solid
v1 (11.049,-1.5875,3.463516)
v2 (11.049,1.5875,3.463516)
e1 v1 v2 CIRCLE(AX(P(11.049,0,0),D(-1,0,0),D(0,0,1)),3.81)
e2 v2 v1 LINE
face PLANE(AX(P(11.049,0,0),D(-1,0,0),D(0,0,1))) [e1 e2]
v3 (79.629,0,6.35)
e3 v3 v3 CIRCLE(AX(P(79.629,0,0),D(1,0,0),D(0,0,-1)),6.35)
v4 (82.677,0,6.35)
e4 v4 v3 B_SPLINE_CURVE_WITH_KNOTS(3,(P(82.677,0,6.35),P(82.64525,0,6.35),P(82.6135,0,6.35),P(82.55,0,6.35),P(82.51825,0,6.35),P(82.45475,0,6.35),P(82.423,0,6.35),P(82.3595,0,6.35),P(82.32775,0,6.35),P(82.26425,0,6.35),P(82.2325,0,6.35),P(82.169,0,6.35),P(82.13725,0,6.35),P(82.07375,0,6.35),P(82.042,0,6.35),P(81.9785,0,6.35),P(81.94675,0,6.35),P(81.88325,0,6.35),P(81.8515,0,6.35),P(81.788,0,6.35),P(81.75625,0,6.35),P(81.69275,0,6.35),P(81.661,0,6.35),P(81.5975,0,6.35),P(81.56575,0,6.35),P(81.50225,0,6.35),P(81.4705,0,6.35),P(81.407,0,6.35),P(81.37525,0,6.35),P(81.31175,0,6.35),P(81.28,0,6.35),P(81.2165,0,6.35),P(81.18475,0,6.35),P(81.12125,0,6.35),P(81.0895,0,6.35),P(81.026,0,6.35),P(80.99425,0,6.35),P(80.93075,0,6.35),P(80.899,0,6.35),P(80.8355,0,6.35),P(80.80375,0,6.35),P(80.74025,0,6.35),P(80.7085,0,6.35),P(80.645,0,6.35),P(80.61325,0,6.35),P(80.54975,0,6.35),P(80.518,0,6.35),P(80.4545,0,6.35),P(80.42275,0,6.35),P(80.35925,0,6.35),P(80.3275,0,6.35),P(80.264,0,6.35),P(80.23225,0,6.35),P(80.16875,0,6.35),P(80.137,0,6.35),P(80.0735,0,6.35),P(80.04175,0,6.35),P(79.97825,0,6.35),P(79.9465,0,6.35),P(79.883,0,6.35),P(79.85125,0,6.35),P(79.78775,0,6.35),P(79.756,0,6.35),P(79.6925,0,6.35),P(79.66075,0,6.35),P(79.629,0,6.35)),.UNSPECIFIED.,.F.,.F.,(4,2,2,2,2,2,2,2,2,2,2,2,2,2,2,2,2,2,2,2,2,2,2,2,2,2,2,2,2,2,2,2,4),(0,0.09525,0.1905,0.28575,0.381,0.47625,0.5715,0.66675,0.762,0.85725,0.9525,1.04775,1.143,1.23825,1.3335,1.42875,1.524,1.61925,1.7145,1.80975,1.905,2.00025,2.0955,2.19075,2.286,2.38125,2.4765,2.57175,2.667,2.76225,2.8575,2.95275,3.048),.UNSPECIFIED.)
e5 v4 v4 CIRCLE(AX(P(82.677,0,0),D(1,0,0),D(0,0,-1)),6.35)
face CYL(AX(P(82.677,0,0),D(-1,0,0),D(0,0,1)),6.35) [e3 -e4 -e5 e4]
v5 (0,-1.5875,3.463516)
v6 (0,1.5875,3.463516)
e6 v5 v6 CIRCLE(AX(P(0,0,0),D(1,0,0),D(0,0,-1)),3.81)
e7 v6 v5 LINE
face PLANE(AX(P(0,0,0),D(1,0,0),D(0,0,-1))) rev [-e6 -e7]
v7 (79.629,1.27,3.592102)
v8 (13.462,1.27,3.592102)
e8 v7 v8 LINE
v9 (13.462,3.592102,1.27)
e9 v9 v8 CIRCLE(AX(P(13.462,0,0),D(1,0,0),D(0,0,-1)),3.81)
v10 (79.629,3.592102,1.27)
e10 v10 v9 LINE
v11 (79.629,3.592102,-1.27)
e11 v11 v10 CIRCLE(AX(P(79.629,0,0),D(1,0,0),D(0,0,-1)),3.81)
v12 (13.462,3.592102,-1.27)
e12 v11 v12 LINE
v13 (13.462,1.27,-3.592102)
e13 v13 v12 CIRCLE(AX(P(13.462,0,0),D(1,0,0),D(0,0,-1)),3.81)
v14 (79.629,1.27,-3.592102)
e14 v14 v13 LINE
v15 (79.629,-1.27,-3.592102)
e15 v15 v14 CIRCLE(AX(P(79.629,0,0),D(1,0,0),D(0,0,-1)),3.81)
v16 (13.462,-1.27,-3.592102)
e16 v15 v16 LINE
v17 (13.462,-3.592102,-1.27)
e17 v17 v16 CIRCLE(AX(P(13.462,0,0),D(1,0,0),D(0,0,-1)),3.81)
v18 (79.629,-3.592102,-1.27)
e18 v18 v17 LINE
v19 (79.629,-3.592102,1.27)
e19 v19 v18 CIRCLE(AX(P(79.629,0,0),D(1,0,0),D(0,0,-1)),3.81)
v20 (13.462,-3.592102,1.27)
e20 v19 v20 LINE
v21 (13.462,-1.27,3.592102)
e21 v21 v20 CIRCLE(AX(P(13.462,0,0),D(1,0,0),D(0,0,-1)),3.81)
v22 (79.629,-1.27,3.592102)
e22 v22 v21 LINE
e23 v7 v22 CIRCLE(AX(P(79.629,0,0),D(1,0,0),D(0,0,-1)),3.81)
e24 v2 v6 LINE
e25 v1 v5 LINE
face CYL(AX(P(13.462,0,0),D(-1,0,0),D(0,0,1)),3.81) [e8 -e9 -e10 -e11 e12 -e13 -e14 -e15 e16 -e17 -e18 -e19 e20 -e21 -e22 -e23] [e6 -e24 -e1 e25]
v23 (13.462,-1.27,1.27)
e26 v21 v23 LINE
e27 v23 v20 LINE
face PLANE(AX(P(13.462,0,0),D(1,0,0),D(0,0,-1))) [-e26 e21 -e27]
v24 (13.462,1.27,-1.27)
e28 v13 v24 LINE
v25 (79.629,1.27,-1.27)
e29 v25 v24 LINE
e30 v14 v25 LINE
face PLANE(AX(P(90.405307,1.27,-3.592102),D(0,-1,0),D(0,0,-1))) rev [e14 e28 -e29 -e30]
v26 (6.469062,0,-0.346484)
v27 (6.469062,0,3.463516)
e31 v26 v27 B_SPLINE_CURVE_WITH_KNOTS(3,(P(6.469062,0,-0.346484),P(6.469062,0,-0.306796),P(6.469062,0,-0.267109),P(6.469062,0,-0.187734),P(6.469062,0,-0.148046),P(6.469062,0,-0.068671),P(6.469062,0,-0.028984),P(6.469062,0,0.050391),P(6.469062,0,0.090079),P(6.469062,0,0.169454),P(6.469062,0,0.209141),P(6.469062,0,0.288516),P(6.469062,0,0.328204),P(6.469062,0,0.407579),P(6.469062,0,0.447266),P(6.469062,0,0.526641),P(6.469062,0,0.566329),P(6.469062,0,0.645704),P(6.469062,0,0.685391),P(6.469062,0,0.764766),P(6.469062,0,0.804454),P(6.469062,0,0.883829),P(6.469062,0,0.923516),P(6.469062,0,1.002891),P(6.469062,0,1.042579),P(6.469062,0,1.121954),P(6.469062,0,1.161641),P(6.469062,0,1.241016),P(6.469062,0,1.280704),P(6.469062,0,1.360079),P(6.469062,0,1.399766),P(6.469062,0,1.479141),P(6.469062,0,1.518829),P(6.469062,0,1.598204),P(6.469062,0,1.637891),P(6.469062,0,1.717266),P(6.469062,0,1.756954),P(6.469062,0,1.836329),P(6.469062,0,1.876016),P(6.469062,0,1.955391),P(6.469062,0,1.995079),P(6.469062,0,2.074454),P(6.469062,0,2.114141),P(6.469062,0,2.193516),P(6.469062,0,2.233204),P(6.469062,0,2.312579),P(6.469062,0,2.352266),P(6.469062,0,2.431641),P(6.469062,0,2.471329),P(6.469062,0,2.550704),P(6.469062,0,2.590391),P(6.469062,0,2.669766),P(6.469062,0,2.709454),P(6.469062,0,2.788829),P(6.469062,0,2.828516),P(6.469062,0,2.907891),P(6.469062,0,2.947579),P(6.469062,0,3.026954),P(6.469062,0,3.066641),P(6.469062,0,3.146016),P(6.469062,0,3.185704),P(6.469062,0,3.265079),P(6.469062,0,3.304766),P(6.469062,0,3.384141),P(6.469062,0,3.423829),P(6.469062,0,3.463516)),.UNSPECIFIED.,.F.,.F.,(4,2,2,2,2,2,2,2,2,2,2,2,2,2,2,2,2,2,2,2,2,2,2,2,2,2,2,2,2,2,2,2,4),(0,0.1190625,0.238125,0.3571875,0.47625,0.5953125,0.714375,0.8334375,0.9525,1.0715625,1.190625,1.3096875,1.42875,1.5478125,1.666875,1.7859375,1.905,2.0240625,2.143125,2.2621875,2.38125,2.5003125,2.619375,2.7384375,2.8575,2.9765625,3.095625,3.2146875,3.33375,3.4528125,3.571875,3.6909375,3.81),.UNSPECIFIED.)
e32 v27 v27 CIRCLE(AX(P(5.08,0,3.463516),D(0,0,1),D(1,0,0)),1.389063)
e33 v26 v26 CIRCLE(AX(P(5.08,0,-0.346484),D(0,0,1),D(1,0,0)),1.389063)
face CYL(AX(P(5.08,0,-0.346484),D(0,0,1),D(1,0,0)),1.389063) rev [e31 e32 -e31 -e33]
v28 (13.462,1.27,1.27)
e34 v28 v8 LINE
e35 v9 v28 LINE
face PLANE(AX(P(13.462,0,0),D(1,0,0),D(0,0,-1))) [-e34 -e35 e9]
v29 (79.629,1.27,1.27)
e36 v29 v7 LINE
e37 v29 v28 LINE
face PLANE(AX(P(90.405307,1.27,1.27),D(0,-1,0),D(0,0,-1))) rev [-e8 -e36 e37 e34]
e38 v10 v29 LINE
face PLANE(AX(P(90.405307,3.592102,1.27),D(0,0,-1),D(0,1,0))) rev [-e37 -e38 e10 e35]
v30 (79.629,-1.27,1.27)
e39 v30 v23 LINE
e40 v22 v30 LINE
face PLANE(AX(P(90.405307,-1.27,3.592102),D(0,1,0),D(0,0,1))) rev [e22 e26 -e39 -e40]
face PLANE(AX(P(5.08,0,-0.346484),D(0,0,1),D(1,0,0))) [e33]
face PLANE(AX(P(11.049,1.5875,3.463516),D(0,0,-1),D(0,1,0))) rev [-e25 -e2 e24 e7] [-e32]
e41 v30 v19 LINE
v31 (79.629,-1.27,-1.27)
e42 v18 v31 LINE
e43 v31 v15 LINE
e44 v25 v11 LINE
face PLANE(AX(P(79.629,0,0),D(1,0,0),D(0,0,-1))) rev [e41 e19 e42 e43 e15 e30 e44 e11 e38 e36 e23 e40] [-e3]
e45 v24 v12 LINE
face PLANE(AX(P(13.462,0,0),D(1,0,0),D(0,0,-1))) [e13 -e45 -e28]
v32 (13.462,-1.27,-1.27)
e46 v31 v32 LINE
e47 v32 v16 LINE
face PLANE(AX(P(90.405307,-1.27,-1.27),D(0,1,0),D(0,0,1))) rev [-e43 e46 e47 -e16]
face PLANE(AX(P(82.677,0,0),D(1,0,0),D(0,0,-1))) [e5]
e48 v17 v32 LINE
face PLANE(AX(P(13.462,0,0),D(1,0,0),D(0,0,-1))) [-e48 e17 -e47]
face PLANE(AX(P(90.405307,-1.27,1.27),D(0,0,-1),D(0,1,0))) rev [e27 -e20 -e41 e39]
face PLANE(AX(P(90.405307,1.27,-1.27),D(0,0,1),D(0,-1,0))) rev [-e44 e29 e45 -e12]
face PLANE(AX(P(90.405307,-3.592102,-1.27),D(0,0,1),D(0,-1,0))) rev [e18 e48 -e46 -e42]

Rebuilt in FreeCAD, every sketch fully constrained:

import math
import FreeCAD as App
import Part
import Sketcher
from FreeCAD import Vector
Q = App.Units.Quantity

doc = App.newDocument("Part")
body = doc.addObject("PartDesign::Body", "Body")

sketch1 = doc.addObject("Sketcher::SketchObject", "Sketch")
body.addObject(sketch1)
sketch1.AttachmentSupport = (doc.YZ_Plane, [""])
sketch1.MapMode = "FlatFace"
sketch1.addGeometry(Part.Circle(Vector(0, 0, 0), Vector(0, 0, 1), 3.8), False)
sketch1.addConstraint(Sketcher.Constraint("Coincident", 0, 3, -1, 1))
sketch1.addConstraint(Sketcher.Constraint("Diameter", 0, Q("0.3 in")))
pad1 = doc.addObject("PartDesign::Pad", "Pad")
body.addObject(pad1)
pad1.Profile = sketch1
pad1.Length = Q("0.53 in")

sketch2 = doc.addObject("Sketcher::SketchObject", "Sketch001")
body.addObject(sketch2)
sketch2.AttachmentSupport = (doc.YZ_Plane, [""])
sketch2.MapMode = "FlatFace"
sketch2.AttachmentOffset = App.Placement(Vector(0, 0, 0.53 * 25.4), App.Rotation())
sketch2.addGeometry(Part.LineSegment(Vector(-3.6, -1.3, 0), Vector(-1.3, -1.3, 0)), False)
sketch2.addGeometry(Part.LineSegment(Vector(-1.3, -1.3, 0), Vector(-1.3, -3.6, 0)), False)
sketch2.addGeometry(Part.ArcOfCircle(Part.Circle(Vector(0, 0, 0), Vector(0, 0, 1), 3.8), math.radians(-109), math.radians(-71)), False)
sketch2.addGeometry(Part.LineSegment(Vector(1.3, -3.6, 0), Vector(1.3, -1.3, 0)), False)
sketch2.addGeometry(Part.LineSegment(Vector(1.3, -1.3, 0), Vector(3.6, -1.3, 0)), False)
sketch2.addGeometry(Part.ArcOfCircle(Part.Circle(Vector(0, 0, 0), Vector(0, 0, 1), 3.8), math.radians(-19), math.radians(19)), False)
sketch2.addGeometry(Part.LineSegment(Vector(3.6, 1.3, 0), Vector(1.3, 1.3, 0)), False)
sketch2.addGeometry(Part.LineSegment(Vector(1.3, 1.3, 0), Vector(1.3, 3.6, 0)), False)
sketch2.addGeometry(Part.ArcOfCircle(Part.Circle(Vector(0, 0, 0), Vector(0, 0, 1), 3.8), math.radians(71), math.radians(109)), False)
sketch2.addGeometry(Part.LineSegment(Vector(-1.3, 3.6, 0), Vector(-1.3, 1.3, 0)), False)
sketch2.addGeometry(Part.LineSegment(Vector(-1.3, 1.3, 0), Vector(-3.6, 1.3, 0)), False)
sketch2.addGeometry(Part.ArcOfCircle(Part.Circle(Vector(0, 0, 0), Vector(0, 0, 1), 3.8), math.radians(161), math.radians(199)), False)
sketch2.addConstraint(Sketcher.Constraint("Coincident", 0, 2, 1, 1))
sketch2.addConstraint(Sketcher.Constraint("Coincident", 1, 2, 2, 1))
sketch2.addConstraint(Sketcher.Constraint("Coincident", 2, 2, 3, 1))
sketch2.addConstraint(Sketcher.Constraint("Coincident", 3, 2, 4, 1))
sketch2.addConstraint(Sketcher.Constraint("Coincident", 4, 2, 5, 1))
sketch2.addConstraint(Sketcher.Constraint("Coincident", 5, 2, 6, 1))
sketch2.addConstraint(Sketcher.Constraint("Coincident", 6, 2, 7, 1))
sketch2.addConstraint(Sketcher.Constraint("Coincident", 7, 2, 8, 1))
sketch2.addConstraint(Sketcher.Constraint("Coincident", 8, 2, 9, 1))
sketch2.addConstraint(Sketcher.Constraint("Coincident", 9, 2, 10, 1))
sketch2.addConstraint(Sketcher.Constraint("Coincident", 10, 2, 11, 1))
sketch2.addConstraint(Sketcher.Constraint("Coincident", 11, 2, 0, 1))
sketch2.addConstraint(Sketcher.Constraint("Horizontal", 0))
sketch2.addConstraint(Sketcher.Constraint("Vertical", 1))
sketch2.addConstraint(Sketcher.Constraint("Vertical", 3))
sketch2.addConstraint(Sketcher.Constraint("Horizontal", 4))
sketch2.addConstraint(Sketcher.Constraint("Horizontal", 6))
sketch2.addConstraint(Sketcher.Constraint("Vertical", 7))
sketch2.addConstraint(Sketcher.Constraint("Vertical", 9))
sketch2.addConstraint(Sketcher.Constraint("Horizontal", 10))
sketch2.addConstraint(Sketcher.Constraint("Coincident", 2, 3, -1, 1))
sketch2.addConstraint(Sketcher.Constraint("Coincident", 5, 3, -1, 1))
sketch2.addConstraint(Sketcher.Constraint("Coincident", 8, 3, -1, 1))
sketch2.addConstraint(Sketcher.Constraint("Coincident", 11, 3, -1, 1))
sketch2.addConstraint(Sketcher.Constraint("Equal", 2, 5))
sketch2.addConstraint(Sketcher.Constraint("Equal", 5, 8))
sketch2.addConstraint(Sketcher.Constraint("Equal", 8, 11))
sketch2.addConstraint(Sketcher.Constraint("Symmetric", 0, 2, 6, 2, -1, 1))
sketch2.addConstraint(Sketcher.Constraint("Symmetric", 3, 2, 9, 2, -1, 1))
sketch2.addConstraint(Sketcher.Constraint("Symmetric", 0, 2, 3, 2, -2))
sketch2.addConstraint(Sketcher.Constraint("Equal", 10, 1))
sketch2.addConstraint(Sketcher.Constraint("Radius", 2, Q("0.15 in")))
sketch2.addConstraint(Sketcher.Constraint("DistanceX", 1, 2, 2, 2, Q("0.1 in")))
pad2 = doc.addObject("PartDesign::Pad", "Pad001")
body.addObject(pad2)
pad2.Profile = sketch2
pad2.Length = Q("2.605 in")

sketch3 = doc.addObject("Sketcher::SketchObject", "Sketch002")
body.addObject(sketch3)
sketch3.AttachmentSupport = (doc.YZ_Plane, [""])
sketch3.MapMode = "FlatFace"
sketch3.AttachmentOffset = App.Placement(Vector(0, 0, 3.135 * 25.4), App.Rotation())
sketch3.addGeometry(Part.Circle(Vector(0, 0, 0), Vector(0, 0, 1), 6), False)
sketch3.addConstraint(Sketcher.Constraint("Coincident", 0, 3, -1, 1))
sketch3.addConstraint(Sketcher.Constraint("Diameter", 0, Q("0.5 in")))
pad3 = doc.addObject("PartDesign::Pad", "Pad002")
body.addObject(pad3)
pad3.Profile = sketch3
pad3.Length = Q("0.12 in")

sketch4 = doc.addObject("Sketcher::SketchObject", "Sketch003")
body.addObject(sketch4)
sketch4.AttachmentSupport = (doc.YZ_Plane, [""])
sketch4.MapMode = "FlatFace"
sketch4.addGeometry(Part.LineSegment(Vector(1.6, 3.5, 0), Vector(-1.6, 3.5, 0)), False)
sketch4.addGeometry(Part.ArcOfCircle(Part.Circle(Vector(0, 0, 0), Vector(0, 0, 1), 3.8), math.radians(65), math.radians(115)), False)
sketch4.addConstraint(Sketcher.Constraint("Coincident", 0, 1, 1, 1))
sketch4.addConstraint(Sketcher.Constraint("Coincident", 1, 2, 0, 2))
sketch4.addConstraint(Sketcher.Constraint("Horizontal", 0))
sketch4.addConstraint(Sketcher.Constraint("Coincident", 1, 3, -1, 1))
sketch4.addConstraint(Sketcher.Constraint("Radius", 1, Q("0.15 in")))
sketch4.addConstraint(Sketcher.Constraint("DistanceX", 0, 2, 0, 1, Q("0.125 in")))
pocket1 = doc.addObject("PartDesign::Pocket", "Pocket")
body.addObject(pocket1)
pocket1.Profile = sketch4
pocket1.Length = Q("0.435 in")
pocket1.Reversed = True

sketch5 = doc.addObject("Sketcher::SketchObject", "Sketch004")
body.addObject(sketch5)
sketch5.AttachmentSupport = (doc.XY_Plane, [""])
sketch5.MapMode = "FlatFace"
sketch5.AttachmentOffset = App.Placement(Vector(0, 0, 3.463516), App.Rotation())
sketch5.addGeometry(Part.Circle(Vector(5.1, 0, 0), Vector(0, 0, 1), 1.4), False)
sketch5.addConstraint(Sketcher.Constraint("PointOnObject", 0, 3, -1))
sketch5.addConstraint(Sketcher.Constraint("Diameter", 0, Q("0.109375 in")))
sketch5.addConstraint(Sketcher.Constraint("DistanceX", -1, 1, 0, 3, Q("0.2 in")))
pocket2 = doc.addObject("PartDesign::Pocket", "Pocket001")
body.addObject(pocket2)
pocket2.Profile = sketch5
pocket2.Length = Q("0.15 in")

doc.recompute()
